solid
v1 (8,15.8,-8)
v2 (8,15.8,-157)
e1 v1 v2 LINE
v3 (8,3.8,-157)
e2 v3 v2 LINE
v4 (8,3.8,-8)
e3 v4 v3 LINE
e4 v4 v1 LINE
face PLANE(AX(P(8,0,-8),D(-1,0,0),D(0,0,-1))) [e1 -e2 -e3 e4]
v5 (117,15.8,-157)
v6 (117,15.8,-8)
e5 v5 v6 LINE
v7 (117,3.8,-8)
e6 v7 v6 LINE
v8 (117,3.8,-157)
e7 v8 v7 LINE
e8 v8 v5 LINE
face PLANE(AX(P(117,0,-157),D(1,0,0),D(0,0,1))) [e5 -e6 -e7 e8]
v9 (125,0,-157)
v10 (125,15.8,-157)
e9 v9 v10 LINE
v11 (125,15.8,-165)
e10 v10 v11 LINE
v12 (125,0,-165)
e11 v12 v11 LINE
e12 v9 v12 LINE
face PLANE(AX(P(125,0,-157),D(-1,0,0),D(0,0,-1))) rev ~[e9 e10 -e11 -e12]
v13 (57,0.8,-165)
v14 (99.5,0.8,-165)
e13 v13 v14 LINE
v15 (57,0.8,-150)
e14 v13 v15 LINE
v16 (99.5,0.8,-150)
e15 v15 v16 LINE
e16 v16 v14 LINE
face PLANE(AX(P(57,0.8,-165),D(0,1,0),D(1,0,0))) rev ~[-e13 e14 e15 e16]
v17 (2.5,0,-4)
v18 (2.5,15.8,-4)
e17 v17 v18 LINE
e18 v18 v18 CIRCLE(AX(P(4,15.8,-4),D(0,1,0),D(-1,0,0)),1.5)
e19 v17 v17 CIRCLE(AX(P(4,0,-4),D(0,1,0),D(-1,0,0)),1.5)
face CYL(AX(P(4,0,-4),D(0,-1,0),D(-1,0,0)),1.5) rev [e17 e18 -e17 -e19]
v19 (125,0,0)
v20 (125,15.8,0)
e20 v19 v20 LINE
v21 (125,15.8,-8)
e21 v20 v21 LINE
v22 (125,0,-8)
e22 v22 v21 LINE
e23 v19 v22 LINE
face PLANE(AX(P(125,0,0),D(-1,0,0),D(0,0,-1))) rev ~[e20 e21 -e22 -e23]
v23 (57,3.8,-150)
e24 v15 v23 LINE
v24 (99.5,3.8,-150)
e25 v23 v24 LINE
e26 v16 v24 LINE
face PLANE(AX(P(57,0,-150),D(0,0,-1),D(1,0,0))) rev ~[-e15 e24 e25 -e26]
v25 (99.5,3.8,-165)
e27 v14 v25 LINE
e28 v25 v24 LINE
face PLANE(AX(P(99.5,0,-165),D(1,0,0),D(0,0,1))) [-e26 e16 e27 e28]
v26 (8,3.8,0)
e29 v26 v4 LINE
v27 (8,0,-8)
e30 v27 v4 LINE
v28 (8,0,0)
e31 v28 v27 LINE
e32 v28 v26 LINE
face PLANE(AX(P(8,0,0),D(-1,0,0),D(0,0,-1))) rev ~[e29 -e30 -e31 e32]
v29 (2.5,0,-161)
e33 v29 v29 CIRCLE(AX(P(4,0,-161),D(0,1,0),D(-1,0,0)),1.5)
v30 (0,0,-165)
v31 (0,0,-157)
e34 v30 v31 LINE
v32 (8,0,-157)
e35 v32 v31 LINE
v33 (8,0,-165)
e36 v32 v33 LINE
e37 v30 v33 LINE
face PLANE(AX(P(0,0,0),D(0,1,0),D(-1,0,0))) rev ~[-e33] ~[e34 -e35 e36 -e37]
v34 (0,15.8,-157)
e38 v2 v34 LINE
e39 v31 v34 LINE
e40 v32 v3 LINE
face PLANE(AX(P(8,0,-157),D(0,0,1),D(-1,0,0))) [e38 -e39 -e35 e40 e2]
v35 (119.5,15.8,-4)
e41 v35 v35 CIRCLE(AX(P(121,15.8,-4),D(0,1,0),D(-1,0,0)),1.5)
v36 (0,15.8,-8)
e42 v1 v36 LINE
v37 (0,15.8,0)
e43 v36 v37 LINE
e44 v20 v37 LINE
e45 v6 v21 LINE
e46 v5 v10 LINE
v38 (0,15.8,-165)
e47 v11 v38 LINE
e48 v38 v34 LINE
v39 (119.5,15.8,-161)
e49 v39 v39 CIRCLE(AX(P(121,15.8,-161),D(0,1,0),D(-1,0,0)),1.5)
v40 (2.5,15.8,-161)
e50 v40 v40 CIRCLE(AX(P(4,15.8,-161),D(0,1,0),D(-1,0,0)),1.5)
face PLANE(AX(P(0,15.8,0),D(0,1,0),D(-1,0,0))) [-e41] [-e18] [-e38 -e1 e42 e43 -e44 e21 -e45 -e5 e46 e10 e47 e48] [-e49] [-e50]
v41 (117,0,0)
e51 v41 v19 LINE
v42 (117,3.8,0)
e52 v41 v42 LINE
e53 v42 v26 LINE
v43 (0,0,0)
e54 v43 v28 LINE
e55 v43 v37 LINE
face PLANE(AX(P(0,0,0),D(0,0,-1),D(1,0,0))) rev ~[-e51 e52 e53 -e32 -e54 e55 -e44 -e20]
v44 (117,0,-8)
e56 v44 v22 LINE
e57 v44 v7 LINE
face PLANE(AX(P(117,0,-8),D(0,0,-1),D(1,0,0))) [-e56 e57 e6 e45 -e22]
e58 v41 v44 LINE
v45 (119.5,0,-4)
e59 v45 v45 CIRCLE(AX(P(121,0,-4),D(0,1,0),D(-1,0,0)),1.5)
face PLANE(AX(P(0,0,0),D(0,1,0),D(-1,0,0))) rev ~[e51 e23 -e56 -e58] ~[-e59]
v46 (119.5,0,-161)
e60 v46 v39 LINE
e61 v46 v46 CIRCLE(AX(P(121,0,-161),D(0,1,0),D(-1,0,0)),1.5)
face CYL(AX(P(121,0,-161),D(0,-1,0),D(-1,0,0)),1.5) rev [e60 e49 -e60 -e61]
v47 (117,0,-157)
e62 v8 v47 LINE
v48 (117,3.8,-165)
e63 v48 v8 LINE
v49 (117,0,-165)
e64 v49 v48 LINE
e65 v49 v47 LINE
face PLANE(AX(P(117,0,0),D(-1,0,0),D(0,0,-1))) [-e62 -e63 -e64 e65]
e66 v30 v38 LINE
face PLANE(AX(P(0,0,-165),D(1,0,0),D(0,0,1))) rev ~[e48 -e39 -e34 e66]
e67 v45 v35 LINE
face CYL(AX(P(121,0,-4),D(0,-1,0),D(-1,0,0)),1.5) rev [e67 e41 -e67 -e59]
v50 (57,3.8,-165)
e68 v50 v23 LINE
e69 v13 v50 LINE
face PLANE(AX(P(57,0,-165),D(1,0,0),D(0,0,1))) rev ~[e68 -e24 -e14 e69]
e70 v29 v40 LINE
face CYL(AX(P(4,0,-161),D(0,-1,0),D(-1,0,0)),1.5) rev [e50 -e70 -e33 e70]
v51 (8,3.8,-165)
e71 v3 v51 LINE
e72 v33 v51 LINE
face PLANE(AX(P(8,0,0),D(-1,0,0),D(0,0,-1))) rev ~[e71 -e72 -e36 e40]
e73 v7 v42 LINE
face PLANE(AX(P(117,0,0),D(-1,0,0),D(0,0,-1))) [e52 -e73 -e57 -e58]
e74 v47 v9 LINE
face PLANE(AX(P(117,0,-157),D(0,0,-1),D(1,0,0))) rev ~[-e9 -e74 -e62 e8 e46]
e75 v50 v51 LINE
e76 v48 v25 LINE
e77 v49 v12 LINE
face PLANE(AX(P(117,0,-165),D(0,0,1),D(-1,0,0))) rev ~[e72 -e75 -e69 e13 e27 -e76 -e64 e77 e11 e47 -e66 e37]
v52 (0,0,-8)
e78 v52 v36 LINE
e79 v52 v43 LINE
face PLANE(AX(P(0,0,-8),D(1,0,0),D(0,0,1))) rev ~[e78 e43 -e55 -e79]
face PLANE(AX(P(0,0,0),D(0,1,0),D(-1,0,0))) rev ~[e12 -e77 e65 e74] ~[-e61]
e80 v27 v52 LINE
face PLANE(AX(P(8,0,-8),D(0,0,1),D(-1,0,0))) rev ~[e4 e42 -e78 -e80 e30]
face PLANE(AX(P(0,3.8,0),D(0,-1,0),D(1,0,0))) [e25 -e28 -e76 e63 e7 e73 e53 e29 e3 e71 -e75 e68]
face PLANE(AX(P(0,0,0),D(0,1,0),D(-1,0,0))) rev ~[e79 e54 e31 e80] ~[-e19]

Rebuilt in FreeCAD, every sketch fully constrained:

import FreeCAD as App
import Part
import Sketcher
from FreeCAD import Vector


def add_polygon(sketch, points):
    """Adds a closed chain of lines whose ends are joined by coincident constraints."""
    first, n = sketch.GeometryCount, len(points)
    for a, b in zip(points, points[1:] + points[:1]):
        sketch.addGeometry(Part.LineSegment(App.Vector(*a, 0), App.Vector(*b, 0)), False)
    for i in range(n):
        sketch.addConstraint(Sketcher.Constraint("Coincident", first + i, 2, first + (i + 1) % n, 1))

doc = App.newDocument("Part")
body = doc.addObject("PartDesign::Body", "Body")

sketch1 = body.newObject("Sketcher::SketchObject", "Sketch")
sketch1.AttachmentSupport = (doc.getObject("XZ_Plane"), [""])
sketch1.MapMode = "FlatFace"
add_polygon(sketch1, [(0, -8), (0, 0), (125, 0), (125, -8), (117, -8), (117, -157), (125, -157), (125, -165), (0, -165), (0, -157), (8, -157), (8, -8)])
sketch1.addGeometry(Part.Circle(Vector(4, -4, 0), Vector(0, 0, 1), 1.5), False)
sketch1.addGeometry(Part.Circle(Vector(4, -161, 0), Vector(0, 0, 1), 1.5), False)
sketch1.addGeometry(Part.Circle(Vector(121, -161, 0), Vector(0, 0, 1), 1.5), False)
sketch1.addGeometry(Part.Circle(Vector(121, -4, 0), Vector(0, 0, 1), 1.5), False)
sketch1.addConstraint([
    Sketcher.Constraint("Vertical", 0),
    Sketcher.Constraint("Horizontal", 1),
    Sketcher.Constraint("Vertical", 2),
    Sketcher.Constraint("Horizontal", 3),
    Sketcher.Constraint("Vertical", 4),
    Sketcher.Constraint("Horizontal", 5),
    Sketcher.Constraint("Vertical", 6),
    Sketcher.Constraint("Horizontal", 7),
    Sketcher.Constraint("Vertical", 8),
    Sketcher.Constraint("Horizontal", 9),
    Sketcher.Constraint("Vertical", 10),
    Sketcher.Constraint("Horizontal", 11),
    Sketcher.Constraint("Coincident", 0, 2, -1, 1),
    Sketcher.Constraint("Equal", 12, 13),
    Sketcher.Constraint("Equal", 13, 14),
    Sketcher.Constraint("Equal", 14, 15),
    Sketcher.Constraint("PointOnObject", 7, 2, -2),
    Sketcher.Constraint("Horizontal", 13, 3, 14, 3),
    Sketcher.Constraint("Horizontal", 12, 3, 15, 3),
    Sketcher.Constraint("Horizontal", 5, 2, 8, 2),
    Sketcher.Constraint("Horizontal", 3, 2, 10, 2),
    Sketcher.Constraint("Vertical", 12, 3, 13, 3),
    Sketcher.Constraint("Vertical", 14, 3, 15, 3),
    Sketcher.Constraint("Vertical", 2, 2, 5, 2),
    Sketcher.Constraint("Equal", 5, 9),
    Sketcher.Constraint("Equal", 11, 0),
    Sketcher.Constraint("Equal", 2, 6),
    Sketcher.Constraint("Diameter", 12, 3.0),
    Sketcher.Constraint("DistanceX", 1, 1, 1, 2, 125.0),
    Sketcher.Constraint("DistanceX", 3, 2, 3, 1, 8.0),
    Sketcher.Constraint("DistanceY", 6, 2, -1, 1, 165.0),
    Sketcher.Constraint("DistanceX", -1, 1, 12, 3, 4.0),
    Sketcher.Constraint("DistanceY", 12, 3, -1, 1, 4.0),
    Sketcher.Constraint("DistanceY", 13, 3, -1, 1, 161.0),
    Sketcher.Constraint("DistanceX", -1, 1, 14, 3, 121.0),
])
pad1 = body.newObject("PartDesign::Pad", "Pad")
pad1.Profile = sketch1
pad1.Length = 15.8
pad1.Reversed = True

sketch2 = body.newObject("Sketcher::SketchObject", "Sketch001")
sketch2.AttachmentSupport = (doc.getObject("XY_Plane"), [""])
sketch2.MapMode = "FlatFace"
sketch2.AttachmentOffset = App.Placement(Vector(0, 0, -165), App.Rotation())
add_polygon(sketch2, [(57, 0.8), (117, 0.8), (117, 0), (57, 0)])
sketch2.addConstraint([
    Sketcher.Constraint("Horizontal", 0),
    Sketcher.Constraint("Vertical", 1),
    Sketcher.Constraint("Horizontal", 2),
    Sketcher.Constraint("Vertical", 3),
    Sketcher.Constraint("PointOnObject", 1, 2, -1),
    Sketcher.Constraint("DistanceX", 0, 1, 0, 2, 60.0),
    Sketcher.Constraint("DistanceY", 1, 2, 1, 1, 0.8),
    Sketcher.Constraint("DistanceX", -1, 1, 0, 2, 117.0),
])
pocket1 = body.newObject("PartDesign::Pocket", "Pocket")
pocket1.Profile = sketch2
pocket1.Length = 15
pocket1.Reversed = True

sketch3 = body.newObject("Sketcher::SketchObject", "Sketch002")
sketch3.AttachmentSupport = (doc.getObject("XZ_Plane"), [""])
sketch3.MapMode = "FlatFace"
add_polygon(sketch3, [(117, 0), (8, 0), (8, -165), (57, -165), (57, -150), (100, -150), (100, -165), (117, -165)])
sketch3.addConstraint([
    Sketcher.Constraint("Horizontal", 0),
    Sketcher.Constraint("Vertical", 1),
    Sketcher.Constraint("Horizontal", 2),
    Sketcher.Constraint("Vertical", 3),
    Sketcher.Constraint("Horizontal", 4),
    Sketcher.Constraint("Vertical", 5),
    Sketcher.Constraint("Horizontal", 6),
    Sketcher.Constraint("Vertical", 7),
    Sketcher.Constraint("PointOnObject", 0, 2, -1),
    Sketcher.Constraint("Horizontal", 2, 2, 5, 2),
    Sketcher.Constraint("DistanceX", 2, 1, 2, 2, 49.0),
    Sketcher.Constraint("DistanceX", 6, 1, 6, 2, 17.5),
    Sketcher.Constraint("DistanceX", 2, 2, 6, 2, 60.0),
    Sketcher.Constraint("DistanceY", 1, 2, 1, 1, 165.0),
    Sketcher.Constraint("DistanceY", 3, 1, 3, 2, 15.0),
    Sketcher.Constraint("DistanceX", -1, 1, 0, 2, 8.0),
])
pocket2 = body.newObject("PartDesign::Pocket", "Pocket001")
pocket2.Profile = sketch3
pocket2.Length = 3.8

doc.recompute()
